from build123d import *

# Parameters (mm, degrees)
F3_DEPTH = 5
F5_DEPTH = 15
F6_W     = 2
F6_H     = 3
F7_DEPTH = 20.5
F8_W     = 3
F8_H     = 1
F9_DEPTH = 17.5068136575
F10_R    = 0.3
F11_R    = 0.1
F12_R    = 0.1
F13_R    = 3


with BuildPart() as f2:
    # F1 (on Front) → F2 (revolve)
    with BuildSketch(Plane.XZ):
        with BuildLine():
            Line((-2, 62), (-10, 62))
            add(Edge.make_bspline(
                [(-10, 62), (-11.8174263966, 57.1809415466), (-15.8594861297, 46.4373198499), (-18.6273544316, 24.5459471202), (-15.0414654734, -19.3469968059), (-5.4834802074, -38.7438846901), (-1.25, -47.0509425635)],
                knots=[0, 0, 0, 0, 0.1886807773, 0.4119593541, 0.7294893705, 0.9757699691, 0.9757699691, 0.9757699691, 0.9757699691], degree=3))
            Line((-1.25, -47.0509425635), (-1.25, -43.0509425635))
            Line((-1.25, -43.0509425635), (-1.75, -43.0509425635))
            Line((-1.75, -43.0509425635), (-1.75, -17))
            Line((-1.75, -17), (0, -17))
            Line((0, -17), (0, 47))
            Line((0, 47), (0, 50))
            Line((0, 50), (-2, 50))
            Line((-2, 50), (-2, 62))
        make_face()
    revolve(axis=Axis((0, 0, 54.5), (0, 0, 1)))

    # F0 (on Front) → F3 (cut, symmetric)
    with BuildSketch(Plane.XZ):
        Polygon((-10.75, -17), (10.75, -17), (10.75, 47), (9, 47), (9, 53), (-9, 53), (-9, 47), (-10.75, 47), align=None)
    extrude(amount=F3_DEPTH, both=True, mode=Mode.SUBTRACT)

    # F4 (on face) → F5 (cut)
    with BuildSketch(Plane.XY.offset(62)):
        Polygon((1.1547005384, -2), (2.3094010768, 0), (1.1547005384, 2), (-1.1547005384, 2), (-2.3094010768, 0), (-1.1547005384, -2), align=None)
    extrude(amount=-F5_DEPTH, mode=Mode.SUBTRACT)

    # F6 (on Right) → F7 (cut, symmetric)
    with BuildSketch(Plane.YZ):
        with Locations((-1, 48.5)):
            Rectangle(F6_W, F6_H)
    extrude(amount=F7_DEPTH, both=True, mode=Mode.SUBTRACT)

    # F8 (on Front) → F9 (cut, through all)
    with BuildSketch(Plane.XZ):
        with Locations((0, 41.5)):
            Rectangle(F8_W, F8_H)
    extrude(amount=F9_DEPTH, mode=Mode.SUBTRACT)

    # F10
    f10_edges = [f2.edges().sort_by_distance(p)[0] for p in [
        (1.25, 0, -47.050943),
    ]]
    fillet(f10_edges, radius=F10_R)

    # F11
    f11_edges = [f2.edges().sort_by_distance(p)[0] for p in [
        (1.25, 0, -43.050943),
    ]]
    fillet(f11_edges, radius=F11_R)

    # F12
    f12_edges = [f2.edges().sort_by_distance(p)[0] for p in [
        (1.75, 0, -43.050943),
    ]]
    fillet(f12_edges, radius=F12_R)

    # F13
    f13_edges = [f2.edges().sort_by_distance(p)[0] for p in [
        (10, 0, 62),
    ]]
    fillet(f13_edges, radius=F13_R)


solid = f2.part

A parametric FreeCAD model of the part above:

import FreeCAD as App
import Part
import Sketcher
Q = App.Units.Quantity


def edges_at(feature, points):
    """Names of the edges that pass closest to the given points."""
    edges = feature.Shape.Edges
    near = lambda p: min(range(len(edges)), key=lambda i: edges[i].distToShape(Part.Vertex(*p))[0])
    return sorted({f"Edge{near(p) + 1}" for p in points})

doc = App.newDocument("Part")
body = doc.addObject("PartDesign::Body", "Body")

sketch1 = body.newObject("Sketcher::SketchObject", "Sketch")
sketch1.AttachmentSupport = (doc.getObject("XZ_Plane"), [""])
sketch1.MapMode = "FlatFace"
sketch1.addGeometry([
    Part.LineSegment(App.Vector(-2, 62, 0), App.Vector(-10, 62, 0)),
    Part.BSplineCurve([App.Vector(-10, 62, 0), App.Vector(-11.817426, 57.180942, 0), App.Vector(-15.859486, 46.43732, 0), App.Vector(-18.627354, 24.545947, 0), App.Vector(-15.041465, -19.346997, 0), App.Vector(-5.48348, -38.743885, 0), App.Vector(-1.25, -47.050943, 0)], [4, 1, 1, 1, 4], [0, 0.188680777, 0.411959354, 0.72948937, 0.975769969], False, 3, [1, 1, 1, 1, 1, 1, 1], False),
    Part.LineSegment(App.Vector(-1.25, -47.050943, 0), App.Vector(-1.25, -43.050943, 0)),
    Part.LineSegment(App.Vector(-1.25, -43.050943, 0), App.Vector(-1.75, -43.050943, 0)),
    Part.LineSegment(App.Vector(-1.75, -43.050943, 0), App.Vector(-1.75, -17, 0)),
    Part.LineSegment(App.Vector(-1.75, -17, 0), App.Vector(0, -17, 0)),
    Part.LineSegment(App.Vector(0, -17, 0), App.Vector(0, 50, 0)),
    Part.LineSegment(App.Vector(0, 50, 0), App.Vector(-2, 50, 0)),
    Part.LineSegment(App.Vector(-2, 50, 0), App.Vector(-2, 62, 0)),
], False)
sketch1.addConstraint([
    Sketcher.Constraint("Block", 1),
    Sketcher.Constraint("Coincident", 0, 2, 1, 1),
    Sketcher.Constraint("Coincident", 1, 2, 2, 1),
    Sketcher.Constraint("Coincident", 2, 2, 3, 1),
    Sketcher.Constraint("Coincident", 3, 2, 4, 1),
    Sketcher.Constraint("Coincident", 4, 2, 5, 1),
    Sketcher.Constraint("Coincident", 5, 2, 6, 1),
    Sketcher.Constraint("Coincident", 6, 2, 7, 1),
    Sketcher.Constraint("Coincident", 7, 2, 8, 1),
    Sketcher.Constraint("Coincident", 8, 2, 0, 1),
    Sketcher.Constraint("Horizontal", 0),
    Sketcher.Constraint("Vertical", 2),
    Sketcher.Constraint("Horizontal", 3),
    Sketcher.Constraint("Vertical", 4),
    Sketcher.Constraint("Horizontal", 5),
    Sketcher.Constraint("Vertical", 6),
    Sketcher.Constraint("Horizontal", 7),
    Sketcher.Constraint("Vertical", 8),
    Sketcher.Constraint("PointOnObject", 5, 2, -2),
    Sketcher.Constraint("DistanceX", 0, 2, 0, 1, 8.0),
    Sketcher.Constraint("DistanceY", 2, 1, 2, 2, 4.0),
    Sketcher.Constraint("DistanceY", 6, 1, 6, 2, 67.0),
    Sketcher.Constraint("DistanceY", 8, 1, 8, 2, 12.0),
    Sketcher.Constraint("DistanceX", 3, 2, 3, 1, 0.5),
])
revolution = body.newObject("PartDesign::Revolution", "Revolution")
revolution.Profile = sketch1
revolution.ReferenceAxis = (sketch1, ["V_Axis"])
revolution.Angle = 360

sketch2 = body.newObject("Sketcher::SketchObject", "Sketch001")
sketch2.AttachmentSupport = (doc.getObject("XZ_Plane"), [""])
sketch2.MapMode = "FlatFace"
sketch2.addGeometry([
    Part.LineSegment(App.Vector(-10.75, -17, 0), App.Vector(10.75, -17, 0)),
    Part.LineSegment(App.Vector(10.75, -17, 0), App.Vector(10.75, 47, 0)),
    Part.LineSegment(App.Vector(10.75, 47, 0), App.Vector(9, 47, 0)),
    Part.LineSegment(App.Vector(9, 47, 0), App.Vector(9, 53, 0)),
    Part.LineSegment(App.Vector(9, 53, 0), App.Vector(-9, 53, 0)),
    Part.LineSegment(App.Vector(-9, 53, 0), App.Vector(-9, 47, 0)),
    Part.LineSegment(App.Vector(-9, 47, 0), App.Vector(-10.75, 47, 0)),
    Part.LineSegment(App.Vector(-10.75, 47, 0), App.Vector(-10.75, -17, 0)),
], False)
sketch2.addConstraint([
    Sketcher.Constraint("Coincident", 0, 2, 1, 1),
    Sketcher.Constraint("Coincident", 1, 2, 2, 1),
    Sketcher.Constraint("Coincident", 2, 2, 3, 1),
    Sketcher.Constraint("Coincident", 3, 2, 4, 1),
    Sketcher.Constraint("Coincident", 4, 2, 5, 1),
    Sketcher.Constraint("Coincident", 5, 2, 6, 1),
    Sketcher.Constraint("Coincident", 6, 2, 7, 1),
    Sketcher.Constraint("Coincident", 7, 2, 0, 1),
    Sketcher.Constraint("Horizontal", 0),
    Sketcher.Constraint("Vertical", 1),
    Sketcher.Constraint("Horizontal", 2),
    Sketcher.Constraint("Vertical", 3),
    Sketcher.Constraint("Horizontal", 4),
    Sketcher.Constraint("Vertical", 5),
    Sketcher.Constraint("Horizontal", 6),
    Sketcher.Constraint("Vertical", 7),
    Sketcher.Constraint("Symmetric", 2, 2, 5, 2, -2),
    Sketcher.Constraint("Equal", 2, 6),
    Sketcher.Constraint("DistanceX", 4, 2, 4, 1, 18.0),
    Sketcher.Constraint("DistanceY", 1, 1, 1, 2, 64.0),
    Sketcher.Constraint("DistanceY", 3, 1, 3, 2, 6.0),
    Sketcher.Constraint("DistanceX", 0, 1, 0, 2, 21.5),
    Sketcher.Constraint("DistanceY", 0, 2, -1, 1, 17.0),
])
pocket1 = body.newObject("PartDesign::Pocket", "Pocket")
pocket1.Profile = sketch2
pocket1.Length = 10
pocket1.Midplane = True

sketch3 = body.newObject("Sketcher::SketchObject", "Sketch002")
sketch3.AttachmentSupport = (doc.getObject("XY_Plane"), [""])
sketch3.MapMode = "FlatFace"
sketch3.AttachmentOffset = App.Placement(App.Vector(0, 0, 62), App.Rotation())
sketch3.addGeometry([
    Part.LineSegment(App.Vector(1.154701, -2, 0), App.Vector(2.309401, 0, 0)),
    Part.LineSegment(App.Vector(2.309401, 0, 0), App.Vector(1.154701, 2, 0)),
    Part.LineSegment(App.Vector(1.154701, 2, 0), App.Vector(-1.154701, 2, 0)),
    Part.LineSegment(App.Vector(-1.154701, 2, 0), App.Vector(-2.309401, 0, 0)),
    Part.LineSegment(App.Vector(-2.309401, 0, 0), App.Vector(-1.154701, -2, 0)),
    Part.LineSegment(App.Vector(-1.154701, -2, 0), App.Vector(1.154701, -2, 0)),
], False)
sketch3.addConstraint([
    Sketcher.Constraint("Coincident", 0, 2, 1, 1),
    Sketcher.Constraint("Coincident", 1, 2, 2, 1),
    Sketcher.Constraint("Coincident", 2, 2, 3, 1),
    Sketcher.Constraint("Coincident", 3, 2, 4, 1),
    Sketcher.Constraint("Coincident", 4, 2, 5, 1),
    Sketcher.Constraint("Coincident", 5, 2, 0, 1),
    Sketcher.Constraint("Horizontal", 2),
    Sketcher.Constraint("Horizontal", 5),
    Sketcher.Constraint("Symmetric", 0, 2, 3, 2, -1, 1),
    Sketcher.Constraint("Symmetric", 1, 2, 4, 2, -1, 1),
    Sketcher.Constraint("PointOnObject", 0, 2, -1),
    Sketcher.Constraint("Parallel", 0, 3),
    Sketcher.Constraint("Vertical", 2, 2, 4, 2),
    Sketcher.Constraint("Angle", 0, Q("60 deg")),
    Sketcher.Constraint("DistanceY", -1, 1, 1, 2, 2.0),
    Sketcher.Constraint("DistanceX", 2, 2, 2, 1, 2.309401),
])
pocket2 = body.newObject("PartDesign::Pocket", "Pocket001")
pocket2.Profile = sketch3
pocket2.Length = 15

sketch4 = body.newObject("Sketcher::SketchObject", "Sketch003")
sketch4.AttachmentSupport = (doc.getObject("YZ_Plane"), [""])
sketch4.MapMode = "FlatFace"
sketch4.addGeometry([
    Part.LineSegment(App.Vector(-2, 50, 0), App.Vector(-2, 47, 0)),
    Part.LineSegment(App.Vector(-2, 47, 0), App.Vector(0, 47, 0)),
    Part.LineSegment(App.Vector(0, 47, 0), App.Vector(0, 50, 0)),
    Part.LineSegment(App.Vector(0, 50, 0), App.Vector(-2, 50, 0)),
], False)
sketch4.addConstraint([
    Sketcher.Constraint("Coincident", 0, 2, 1, 1),
    Sketcher.Constraint("Coincident", 1, 2, 2, 1),
    Sketcher.Constraint("Coincident", 2, 2, 3, 1),
    Sketcher.Constraint("Coincident", 3, 2, 0, 1),
    Sketcher.Constraint("Vertical", 0),
    Sketcher.Constraint("Horizontal", 1),
    Sketcher.Constraint("Vertical", 2),
    Sketcher.Constraint("Horizontal", 3),
    Sketcher.Constraint("PointOnObject", 1, 2, -2),
    Sketcher.Constraint("DistanceX", 1, 1, 1, 2, 2.0),
    Sketcher.Constraint("DistanceY", 0, 2, 0, 1, 3.0),
    Sketcher.Constraint("DistanceY", -1, 1, 0, 2, 47.0),
])
pocket3 = body.newObject("PartDesign::Pocket", "Pocket002")
pocket3.Profile = sketch4
pocket3.Length = 41
pocket3.Midplane = True

sketch5 = body.newObject("Sketcher::SketchObject", "Sketch004")
sketch5.AttachmentSupport = (doc.getObject("XZ_Plane"), [""])
sketch5.MapMode = "FlatFace"
sketch5.addGeometry([
    Part.LineSegment(App.Vector(-1.5, 42, 0), App.Vector(-1.5, 41, 0)),
    Part.LineSegment(App.Vector(-1.5, 41, 0), App.Vector(1.5, 41, 0)),
    Part.LineSegment(App.Vector(1.5, 41, 0), App.Vector(1.5, 42, 0)),
    Part.LineSegment(App.Vector(1.5, 42, 0), App.Vector(-1.5, 42, 0)),
], False)
sketch5.addConstraint([
    Sketcher.Constraint("Coincident", 0, 2, 1, 1),
    Sketcher.Constraint("Coincident", 1, 2, 2, 1),
    Sketcher.Constraint("Coincident", 2, 2, 3, 1),
    Sketcher.Constraint("Coincident", 3, 2, 0, 1),
    Sketcher.Constraint("Vertical", 0),
    Sketcher.Constraint("Horizontal", 1),
    Sketcher.Constraint("Vertical", 2),
    Sketcher.Constraint("Horizontal", 3),
    Sketcher.Constraint("DistanceX", 1, 1, 1, 2, 3.0),
    Sketcher.Constraint("DistanceY", 0, 2, 0, 1, 1.0),
    Sketcher.Constraint("DistanceY", -1, 1, 0, 2, 41.0),
    Sketcher.Constraint("DistanceX", 0, 2, -1, 1, 1.5),
])
pocket4 = body.newObject("PartDesign::Pocket", "Pocket003")
pocket4.Profile = sketch5
pocket4.Type = "ThroughAll"
pocket4.Reversed = True
doc.recompute()

fillet = body.newObject("PartDesign::Fillet", "Fillet")
fillet.Base = (pocket4, edges_at(pocket4, [(1.25, 0, -47.051)]))
fillet.Radius = 0.3
doc.recompute()

fillet2 = body.newObject("PartDesign::Fillet", "Fillet001")
fillet2.Base = (fillet, edges_at(fillet, [(1.25, 0, -43.051)]))
fillet2.Radius = 0.1
doc.recompute()

fillet3 = body.newObject("PartDesign::Fillet", "Fillet002")
fillet3.Base = (fillet2, edges_at(fillet2, [(1.75, 0, -43.051)]))
fillet3.Radius = 0.1
doc.recompute()

fillet4 = body.newObject("PartDesign::Fillet", "Fillet003")
fillet4.Base = (fillet3, edges_at(fillet3, [(10, 0, 62)]))
fillet4.Radius = 3

doc.recompute()
